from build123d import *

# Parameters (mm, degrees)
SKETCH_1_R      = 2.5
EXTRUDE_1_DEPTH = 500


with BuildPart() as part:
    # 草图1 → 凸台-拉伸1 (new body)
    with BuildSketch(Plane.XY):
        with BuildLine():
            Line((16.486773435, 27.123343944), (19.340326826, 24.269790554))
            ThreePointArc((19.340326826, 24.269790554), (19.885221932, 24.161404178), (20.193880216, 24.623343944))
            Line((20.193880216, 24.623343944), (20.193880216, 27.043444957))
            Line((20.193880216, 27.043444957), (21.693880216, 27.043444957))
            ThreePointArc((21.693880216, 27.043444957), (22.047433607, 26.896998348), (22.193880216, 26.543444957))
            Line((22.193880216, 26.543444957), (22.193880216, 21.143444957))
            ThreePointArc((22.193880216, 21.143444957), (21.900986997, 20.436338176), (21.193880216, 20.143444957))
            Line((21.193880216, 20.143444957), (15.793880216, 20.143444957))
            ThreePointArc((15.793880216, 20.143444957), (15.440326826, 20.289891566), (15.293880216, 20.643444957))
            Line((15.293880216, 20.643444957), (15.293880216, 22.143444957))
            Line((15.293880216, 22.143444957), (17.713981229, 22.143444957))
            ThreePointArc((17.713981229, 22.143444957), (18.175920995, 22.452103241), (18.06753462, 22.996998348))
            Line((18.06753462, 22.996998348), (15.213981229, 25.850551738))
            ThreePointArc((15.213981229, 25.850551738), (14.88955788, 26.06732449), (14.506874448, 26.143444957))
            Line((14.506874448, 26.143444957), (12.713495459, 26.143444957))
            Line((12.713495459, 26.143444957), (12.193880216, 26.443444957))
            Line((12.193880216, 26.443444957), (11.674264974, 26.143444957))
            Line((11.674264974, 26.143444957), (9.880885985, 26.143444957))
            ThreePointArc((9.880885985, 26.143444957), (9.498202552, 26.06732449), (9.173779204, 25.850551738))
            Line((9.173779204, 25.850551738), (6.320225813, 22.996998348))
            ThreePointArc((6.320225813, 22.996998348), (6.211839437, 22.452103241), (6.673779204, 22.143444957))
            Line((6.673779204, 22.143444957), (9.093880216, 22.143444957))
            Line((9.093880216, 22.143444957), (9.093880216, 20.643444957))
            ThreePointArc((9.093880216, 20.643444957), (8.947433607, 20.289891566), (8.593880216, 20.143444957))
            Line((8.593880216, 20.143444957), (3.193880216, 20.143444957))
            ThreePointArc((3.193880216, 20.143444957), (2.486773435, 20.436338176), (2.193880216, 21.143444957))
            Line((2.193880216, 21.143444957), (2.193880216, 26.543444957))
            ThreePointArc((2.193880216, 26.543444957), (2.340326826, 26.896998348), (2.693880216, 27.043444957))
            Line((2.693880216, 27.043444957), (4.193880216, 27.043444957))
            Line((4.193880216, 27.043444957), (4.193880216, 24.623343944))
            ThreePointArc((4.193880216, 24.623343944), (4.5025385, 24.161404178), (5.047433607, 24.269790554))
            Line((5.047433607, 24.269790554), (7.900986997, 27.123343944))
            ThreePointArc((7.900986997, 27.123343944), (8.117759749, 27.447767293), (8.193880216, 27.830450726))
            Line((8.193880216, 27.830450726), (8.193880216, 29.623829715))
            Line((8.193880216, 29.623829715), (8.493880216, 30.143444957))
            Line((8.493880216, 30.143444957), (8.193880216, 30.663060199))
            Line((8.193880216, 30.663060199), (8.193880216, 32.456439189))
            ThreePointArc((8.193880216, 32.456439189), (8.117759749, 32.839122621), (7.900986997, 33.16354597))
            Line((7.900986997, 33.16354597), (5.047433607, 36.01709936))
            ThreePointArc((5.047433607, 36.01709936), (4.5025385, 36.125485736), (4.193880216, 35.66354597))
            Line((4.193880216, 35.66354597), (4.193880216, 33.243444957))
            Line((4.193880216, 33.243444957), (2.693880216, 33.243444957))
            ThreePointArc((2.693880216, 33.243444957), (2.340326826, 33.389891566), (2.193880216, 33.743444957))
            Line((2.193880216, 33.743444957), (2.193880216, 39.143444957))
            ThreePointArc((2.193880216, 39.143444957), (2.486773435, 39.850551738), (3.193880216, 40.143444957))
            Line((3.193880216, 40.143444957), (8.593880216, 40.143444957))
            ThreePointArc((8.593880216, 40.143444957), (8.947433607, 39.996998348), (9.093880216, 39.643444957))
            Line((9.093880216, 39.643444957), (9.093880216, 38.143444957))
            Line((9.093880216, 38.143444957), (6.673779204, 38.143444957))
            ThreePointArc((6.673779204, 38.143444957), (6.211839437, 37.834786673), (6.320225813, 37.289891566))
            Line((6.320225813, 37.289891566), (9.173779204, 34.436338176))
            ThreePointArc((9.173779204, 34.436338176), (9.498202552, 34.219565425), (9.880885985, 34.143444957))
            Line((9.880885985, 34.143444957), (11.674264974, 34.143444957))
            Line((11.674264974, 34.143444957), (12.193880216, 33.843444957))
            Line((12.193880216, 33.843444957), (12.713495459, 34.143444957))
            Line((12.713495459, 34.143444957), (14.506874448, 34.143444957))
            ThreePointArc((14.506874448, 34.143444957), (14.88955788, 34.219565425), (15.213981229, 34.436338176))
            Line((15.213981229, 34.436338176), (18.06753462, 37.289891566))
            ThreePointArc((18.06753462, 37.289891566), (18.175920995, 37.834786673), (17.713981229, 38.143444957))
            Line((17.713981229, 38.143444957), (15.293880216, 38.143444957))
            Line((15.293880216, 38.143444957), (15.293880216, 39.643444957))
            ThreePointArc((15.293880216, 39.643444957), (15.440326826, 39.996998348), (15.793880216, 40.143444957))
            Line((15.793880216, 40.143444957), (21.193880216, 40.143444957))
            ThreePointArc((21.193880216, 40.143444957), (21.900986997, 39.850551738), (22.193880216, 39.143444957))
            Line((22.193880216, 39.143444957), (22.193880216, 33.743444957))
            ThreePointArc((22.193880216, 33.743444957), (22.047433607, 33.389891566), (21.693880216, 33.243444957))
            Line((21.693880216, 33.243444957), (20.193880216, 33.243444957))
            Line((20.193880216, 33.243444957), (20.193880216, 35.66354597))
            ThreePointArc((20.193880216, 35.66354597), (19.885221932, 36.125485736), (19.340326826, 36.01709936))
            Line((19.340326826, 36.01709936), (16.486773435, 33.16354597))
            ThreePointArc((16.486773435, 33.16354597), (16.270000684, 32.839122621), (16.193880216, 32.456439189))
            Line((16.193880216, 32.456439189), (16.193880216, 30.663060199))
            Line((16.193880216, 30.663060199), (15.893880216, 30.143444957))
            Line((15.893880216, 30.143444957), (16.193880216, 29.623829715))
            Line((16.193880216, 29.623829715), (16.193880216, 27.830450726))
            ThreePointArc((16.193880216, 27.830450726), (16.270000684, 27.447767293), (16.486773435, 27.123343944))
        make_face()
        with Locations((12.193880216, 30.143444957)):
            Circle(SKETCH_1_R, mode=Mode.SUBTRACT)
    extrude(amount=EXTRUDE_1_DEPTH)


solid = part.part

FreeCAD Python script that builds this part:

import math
import FreeCAD as App
import Part
import Sketcher
Q = App.Units.Quantity

doc = App.newDocument("Part")
body = doc.addObject("PartDesign::Body", "Body")

sketch1 = doc.addObject("Sketcher::SketchObject", "Sketch")
body.addObject(sketch1)
sketch1.AttachmentSupport = (doc.XY_Plane, [""])
sketch1.MapMode = "FlatFace"
sketch1.addGeometry([
    Part.LineSegment(App.Vector(19.34, 24.27, 0), App.Vector(16.49, 27.12, 0)),
    Part.ArcOfCircle(Part.Circle(App.Vector(17.19, 27.83, 0), App.Vector(0, 0, 1), 1), math.radians(-180), math.radians(-135)),
    Part.LineSegment(App.Vector(16.19, 27.83, 0), App.Vector(16.19, 29.62, 0)),
    Part.LineSegment(App.Vector(16.19, 29.62, 0), App.Vector(15.89, 30.14, 0)),
    Part.LineSegment(App.Vector(15.89, 30.14, 0), App.Vector(16.19, 30.66, 0)),
    Part.LineSegment(App.Vector(16.19, 30.66, 0), App.Vector(16.19, 32.46, 0)),
    Part.ArcOfCircle(Part.Circle(App.Vector(17.19, 32.46, 0), App.Vector(0, 0, 1), 1), math.radians(135), math.radians(180)),
    Part.LineSegment(App.Vector(16.49, 33.16, 0), App.Vector(19.34, 36.02, 0)),
    Part.ArcOfCircle(Part.Circle(App.Vector(19.69, 35.66, 0), App.Vector(0, 0, 1), 0.5), math.radians(0), math.radians(135)),
    Part.LineSegment(App.Vector(20.19, 35.66, 0), App.Vector(20.19, 33.24, 0)),
    Part.LineSegment(App.Vector(20.19, 33.24, 0), App.Vector(21.69, 33.24, 0)),
    Part.ArcOfCircle(Part.Circle(App.Vector(21.69, 33.74, 0), App.Vector(0, 0, 1), 0.5), math.radians(-90), math.radians(0)),
    Part.LineSegment(App.Vector(22.19, 33.74, 0), App.Vector(22.19, 39.14, 0)),
    Part.ArcOfCircle(Part.Circle(App.Vector(21.19, 39.14, 0), App.Vector(0, 0, 1), 1), math.radians(0), math.radians(90)),
    Part.LineSegment(App.Vector(21.19, 40.14, 0), App.Vector(15.79, 40.14, 0)),
    Part.ArcOfCircle(Part.Circle(App.Vector(15.79, 39.64, 0), App.Vector(0, 0, 1), 0.5), math.radians(90), math.radians(180)),
    Part.LineSegment(App.Vector(15.29, 39.64, 0), App.Vector(15.29, 38.14, 0)),
    Part.LineSegment(App.Vector(15.29, 38.14, 0), App.Vector(17.71, 38.14, 0)),
    Part.ArcOfCircle(Part.Circle(App.Vector(17.71, 37.64, 0), App.Vector(0, 0, 1), 0.5), math.radians(-45), math.radians(90)),
    Part.LineSegment(App.Vector(18.07, 37.29, 0), App.Vector(15.21, 34.44, 0)),
    Part.ArcOfCircle(Part.Circle(App.Vector(14.51, 35.14, 0), App.Vector(0, 0, 1), 1), math.radians(-90), math.radians(-45)),
    Part.LineSegment(App.Vector(14.51, 34.14, 0), App.Vector(12.71, 34.14, 0)),
    Part.LineSegment(App.Vector(12.71, 34.14, 0), App.Vector(12.19, 33.84, 0)),
    Part.LineSegment(App.Vector(12.19, 33.84, 0), App.Vector(11.67, 34.14, 0)),
    Part.LineSegment(App.Vector(11.67, 34.14, 0), App.Vector(9.88, 34.14, 0)),
    Part.ArcOfCircle(Part.Circle(App.Vector(9.88, 35.14, 0), App.Vector(0, 0, 1), 1), math.radians(-135), math.radians(-90)),
    Part.LineSegment(App.Vector(9.17, 34.44, 0), App.Vector(6.32, 37.29, 0)),
    Part.ArcOfCircle(Part.Circle(App.Vector(6.67, 37.64, 0), App.Vector(0, 0, 1), 0.5), math.radians(90), math.radians(225)),
    Part.LineSegment(App.Vector(6.67, 38.14, 0), App.Vector(9.09, 38.14, 0)),
    Part.LineSegment(App.Vector(9.09, 38.14, 0), App.Vector(9.09, 39.64, 0)),
    Part.ArcOfCircle(Part.Circle(App.Vector(8.59, 39.64, 0), App.Vector(0, 0, 1), 0.5), math.radians(0), math.radians(90)),
    Part.LineSegment(App.Vector(8.59, 40.14, 0), App.Vector(3.19, 40.14, 0)),
    Part.ArcOfCircle(Part.Circle(App.Vector(3.19, 39.14, 0), App.Vector(0, 0, 1), 1), math.radians(90), math.radians(180)),
    Part.LineSegment(App.Vector(2.19, 39.14, 0), App.Vector(2.19, 33.74, 0)),
    Part.ArcOfCircle(Part.Circle(App.Vector(2.69, 33.74, 0), App.Vector(0, 0, 1), 0.5), math.radians(180), math.radians(270)),
    Part.LineSegment(App.Vector(2.69, 33.24, 0), App.Vector(4.19, 33.24, 0)),
    Part.LineSegment(App.Vector(4.19, 33.24, 0), App.Vector(4.19, 35.66, 0)),
    Part.ArcOfCircle(Part.Circle(App.Vector(4.69, 35.66, 0), App.Vector(0, 0, 1), 0.5), math.radians(45), math.radians(180)),
    Part.LineSegment(App.Vector(5.05, 36.02, 0), App.Vector(7.9, 33.16, 0)),
    Part.ArcOfCircle(Part.Circle(App.Vector(7.19, 32.46, 0), App.Vector(0, 0, 1), 1), math.radians(0), math.radians(45)),
    Part.LineSegment(App.Vector(8.19, 32.46, 0), App.Vector(8.19, 30.66, 0)),
    Part.LineSegment(App.Vector(8.19, 30.66, 0), App.Vector(8.49, 30.14, 0)),
    Part.LineSegment(App.Vector(8.49, 30.14, 0), App.Vector(8.19, 29.62, 0)),
    Part.LineSegment(App.Vector(8.19, 29.62, 0), App.Vector(8.19, 27.83, 0)),
    Part.ArcOfCircle(Part.Circle(App.Vector(7.19, 27.83, 0), App.Vector(0, 0, 1), 1), math.radians(-45), math.radians(0)),
    Part.LineSegment(App.Vector(7.9, 27.12, 0), App.Vector(5.05, 24.27, 0)),
    Part.ArcOfCircle(Part.Circle(App.Vector(4.69, 24.62, 0), App.Vector(0, 0, 1), 0.5), math.radians(180), math.radians(315)),
    Part.LineSegment(App.Vector(4.19, 24.62, 0), App.Vector(4.19, 27.04, 0)),
    Part.LineSegment(App.Vector(4.19, 27.04, 0), App.Vector(2.69, 27.04, 0)),
    Part.ArcOfCircle(Part.Circle(App.Vector(2.69, 26.54, 0), App.Vector(0, 0, 1), 0.5), math.radians(90), math.radians(180)),
    Part.LineSegment(App.Vector(2.19, 26.54, 0), App.Vector(2.19, 21.14, 0)),
    Part.ArcOfCircle(Part.Circle(App.Vector(3.19, 21.14, 0), App.Vector(0, 0, 1), 1), math.radians(-180), math.radians(-90)),
    Part.LineSegment(App.Vector(3.19, 20.14, 0), App.Vector(8.59, 20.14, 0)),
    Part.ArcOfCircle(Part.Circle(App.Vector(8.59, 20.64, 0), App.Vector(0, 0, 1), 0.5), math.radians(-90), math.radians(0)),
    Part.LineSegment(App.Vector(9.09, 20.64, 0), App.Vector(9.09, 22.14, 0)),
    Part.LineSegment(App.Vector(9.09, 22.14, 0), App.Vector(6.67, 22.14, 0)),
    Part.ArcOfCircle(Part.Circle(App.Vector(6.67, 22.64, 0), App.Vector(0, 0, 1), 0.5), math.radians(135), math.radians(270)),
    Part.LineSegment(App.Vector(6.32, 23, 0), App.Vector(9.17, 25.85, 0)),
    Part.ArcOfCircle(Part.Circle(App.Vector(9.88, 25.14, 0), App.Vector(0, 0, 1), 1), math.radians(90), math.radians(135)),
    Part.LineSegment(App.Vector(9.88, 26.14, 0), App.Vector(11.67, 26.14, 0)),
    Part.LineSegment(App.Vector(11.67, 26.14, 0), App.Vector(12.19, 26.44, 0)),
    Part.LineSegment(App.Vector(12.19, 26.44, 0), App.Vector(12.71, 26.14, 0)),
    Part.LineSegment(App.Vector(12.71, 26.14, 0), App.Vector(14.51, 26.14, 0)),
    Part.ArcOfCircle(Part.Circle(App.Vector(14.51, 25.14, 0), App.Vector(0, 0, 1), 1), math.radians(45), math.radians(90)),
    Part.LineSegment(App.Vector(15.21, 25.85, 0), App.Vector(18.07, 23, 0)),
    Part.ArcOfCircle(Part.Circle(App.Vector(17.71, 22.64, 0), App.Vector(0, 0, 1), 0.5), math.radians(-90), math.radians(45)),
    Part.LineSegment(App.Vector(17.71, 22.14, 0), App.Vector(15.29, 22.14, 0)),
    Part.LineSegment(App.Vector(15.29, 22.14, 0), App.Vector(15.29, 20.64, 0)),
    Part.ArcOfCircle(Part.Circle(App.Vector(15.79, 20.64, 0), App.Vector(0, 0, 1), 0.5), math.radians(180), math.radians(270)),
    Part.LineSegment(App.Vector(15.79, 20.14, 0), App.Vector(21.19, 20.14, 0)),
    Part.ArcOfCircle(Part.Circle(App.Vector(21.19, 21.14, 0), App.Vector(0, 0, 1), 1), math.radians(-90), math.radians(0)),
    Part.LineSegment(App.Vector(22.19, 21.14, 0), App.Vector(22.19, 26.54, 0)),
    Part.ArcOfCircle(Part.Circle(App.Vector(21.69, 26.54, 0), App.Vector(0, 0, 1), 0.5), math.radians(0), math.radians(90)),
    Part.LineSegment(App.Vector(21.69, 27.04, 0), App.Vector(20.19, 27.04, 0)),
    Part.LineSegment(App.Vector(20.19, 27.04, 0), App.Vector(20.19, 24.62, 0)),
    Part.ArcOfCircle(Part.Circle(App.Vector(19.69, 24.62, 0), App.Vector(0, 0, 1), 0.5), math.radians(-135), math.radians(0)),
    Part.Circle(App.Vector(12.19, 30.14, 0), App.Vector(0, 0, 1), 2.5),
], False)
sketch1.addConstraint([
    Sketcher.Constraint("Tangent", 0, 2, 1, 2),
    Sketcher.Constraint("Tangent", 1, 1, 2, 1),
    Sketcher.Constraint("Coincident", 2, 2, 3, 1),
    Sketcher.Constraint("Coincident", 3, 2, 4, 1),
    Sketcher.Constraint("Coincident", 4, 2, 5, 1),
    Sketcher.Constraint("Tangent", 5, 2, 6, 2),
    Sketcher.Constraint("Tangent", 6, 1, 7, 1),
    Sketcher.Constraint("Tangent", 7, 2, 8, 2),
    Sketcher.Constraint("Tangent", 8, 1, 9, 1),
    Sketcher.Constraint("Coincident", 9, 2, 10, 1),
    Sketcher.Constraint("Tangent", 10, 2, 11, 1),
    Sketcher.Constraint("Tangent", 11, 2, 12, 1),
    Sketcher.Constraint("Tangent", 12, 2, 13, 1),
    Sketcher.Constraint("Tangent", 13, 2, 14, 1),
    Sketcher.Constraint("Tangent", 14, 2, 15, 1),
    Sketcher.Constraint("Tangent", 15, 2, 16, 1),
    Sketcher.Constraint("Coincident", 16, 2, 17, 1),
    Sketcher.Constraint("Tangent", 17, 2, 18, 2),
    Sketcher.Constraint("Tangent", 18, 1, 19, 1),
    Sketcher.Constraint("Tangent", 19, 2, 20, 2),
    Sketcher.Constraint("Tangent", 20, 1, 21, 1),
    Sketcher.Constraint("Coincident", 21, 2, 22, 1),
    Sketcher.Constraint("Coincident", 22, 2, 23, 1),
    Sketcher.Constraint("Coincident", 23, 2, 24, 1),
    Sketcher.Constraint("Tangent", 24, 2, 25, 2),
    Sketcher.Constraint("Tangent", 25, 1, 26, 1),
    Sketcher.Constraint("Tangent", 26, 2, 27, 2),
    Sketcher.Constraint("Tangent", 27, 1, 28, 1),
    Sketcher.Constraint("Coincident", 28, 2, 29, 1),
    Sketcher.Constraint("Tangent", 29, 2, 30, 1),
    Sketcher.Constraint("Tangent", 30, 2, 31, 1),
    Sketcher.Constraint("Tangent", 31, 2, 32, 1),
    Sketcher.Constraint("Tangent", 32, 2, 33, 1),
    Sketcher.Constraint("Tangent", 33, 2, 34, 1),
    Sketcher.Constraint("Tangent", 34, 2, 35, 1),
    Sketcher.Constraint("Coincident", 35, 2, 36, 1),
    Sketcher.Constraint("Tangent", 36, 2, 37, 2),
    Sketcher.Constraint("Tangent", 37, 1, 38, 1),
    Sketcher.Constraint("Tangent", 38, 2, 39, 2),
    Sketcher.Constraint("Tangent", 39, 1, 40, 1),
    Sketcher.Constraint("Coincident", 40, 2, 41, 1),
    Sketcher.Constraint("Coincident", 41, 2, 42, 1),
    Sketcher.Constraint("Coincident", 42, 2, 43, 1),
    Sketcher.Constraint("Tangent", 43, 2, 44, 2),
    Sketcher.Constraint("Tangent", 44, 1, 45, 1),
    Sketcher.Constraint("Tangent", 45, 2, 46, 2),
    Sketcher.Constraint("Tangent", 46, 1, 47, 1),
    Sketcher.Constraint("Coincident", 47, 2, 48, 1),
    Sketcher.Constraint("Tangent", 48, 2, 49, 1),
    Sketcher.Constraint("Tangent", 49, 2, 50, 1),
    Sketcher.Constraint("Tangent", 50, 2, 51, 1),
    Sketcher.Constraint("Tangent", 51, 2, 52, 1),
    Sketcher.Constraint("Tangent", 52, 2, 53, 1),
    Sketcher.Constraint("Tangent", 53, 2, 54, 1),
    Sketcher.Constraint("Coincident", 54, 2, 55, 1),
    Sketcher.Constraint("Tangent", 55, 2, 56, 2),
    Sketcher.Constraint("Tangent", 56, 1, 57, 1),
    Sketcher.Constraint("Tangent", 57, 2, 58, 2),
    Sketcher.Constraint("Tangent", 58, 1, 59, 1),
    Sketcher.Constraint("Coincident", 59, 2, 60, 1),
    Sketcher.Constraint("Coincident", 60, 2, 61, 1),
    Sketcher.Constraint("Coincident", 61, 2, 62, 1),
    Sketcher.Constraint("Tangent", 62, 2, 63, 2),
    Sketcher.Constraint("Tangent", 63, 1, 64, 1),
    Sketcher.Constraint("Tangent", 64, 2, 65, 2),
    Sketcher.Constraint("Tangent", 65, 1, 66, 1),
    Sketcher.Constraint("Coincident", 66, 2, 67, 1),
    Sketcher.Constraint("Tangent", 67, 2, 68, 1),
    Sketcher.Constraint("Tangent", 68, 2, 69, 1),
    Sketcher.Constraint("Tangent", 69, 2, 70, 1),
    Sketcher.Constraint("Tangent", 70, 2, 71, 1),
    Sketcher.Constraint("Tangent", 71, 2, 72, 1),
    Sketcher.Constraint("Tangent", 72, 2, 73, 1),
    Sketcher.Constraint("Coincident", 73, 2, 74, 1),
    Sketcher.Constraint("Tangent", 74, 2, 75, 2),
    Sketcher.Constraint("Tangent", 75, 1, 0, 1),
    Sketcher.Constraint("Vertical", 2),
    Sketcher.Constraint("Vertical", 5),
    Sketcher.Constraint("Vertical", 9),
    Sketcher.Constraint("Horizontal", 10),
    Sketcher.Constraint("Vertical", 12),
    Sketcher.Constraint("Horizontal", 14),
    Sketcher.Constraint("Vertical", 16),
    Sketcher.Constraint("Horizontal", 17),
    Sketcher.Constraint("Horizontal", 21),
    Sketcher.Constraint("Horizontal", 24),
    Sketcher.Constraint("Horizontal", 28),
    Sketcher.Constraint("Vertical", 29),
    Sketcher.Constraint("Horizontal", 31),
    Sketcher.Constraint("Vertical", 33),
    Sketcher.Constraint("Horizontal", 35),
    Sketcher.Constraint("Vertical", 36),
    Sketcher.Constraint("Vertical", 40),
    Sketcher.Constraint("Vertical", 43),
    Sketcher.Constraint("Vertical", 47),
    Sketcher.Constraint("Horizontal", 48),
    Sketcher.Constraint("Vertical", 50),
    Sketcher.Constraint("Horizontal", 52),
    Sketcher.Constraint("Vertical", 54),
    Sketcher.Constraint("Horizontal", 55),
    Sketcher.Constraint("Horizontal", 59),
    Sketcher.Constraint("Horizontal", 62),
    Sketcher.Constraint("Horizontal", 66),
    Sketcher.Constraint("Vertical", 67),
    Sketcher.Constraint("Horizontal", 69),
    Sketcher.Constraint("Vertical", 71),
    Sketcher.Constraint("Horizontal", 73),
    Sketcher.Constraint("Vertical", 74),
    Sketcher.Constraint("Equal", 1, 6),
    Sketcher.Constraint("Equal", 8, 11),
    Sketcher.Constraint("Equal", 6, 13),
    Sketcher.Constraint("Equal", 11, 15),
    Sketcher.Constraint("Equal", 15, 18),
    Sketcher.Constraint("Equal", 13, 20),
    Sketcher.Constraint("Equal", 20, 25),
    Sketcher.Constraint("Equal", 18, 27),
    Sketcher.Constraint("Equal", 27, 30),
    Sketcher.Constraint("Equal", 25, 32),
    Sketcher.Constraint("Equal", 30, 34),
    Sketcher.Constraint("Equal", 34, 37),
    Sketcher.Constraint("Equal", 32, 39),
    Sketcher.Constraint("Equal", 39, 44),
    Sketcher.Constraint("Equal", 37, 46),
    Sketcher.Constraint("Equal", 46, 49),
    Sketcher.Constraint("Equal", 44, 51),
    Sketcher.Constraint("Equal", 49, 53),
    Sketcher.Constraint("Equal", 53, 56),
    Sketcher.Constraint("Equal", 51, 58),
    Sketcher.Constraint("Equal", 58, 63),
    Sketcher.Constraint("Equal", 56, 65),
    Sketcher.Constraint("Equal", 65, 68),
    Sketcher.Constraint("Equal", 63, 70),
    Sketcher.Constraint("Equal", 68, 72),
    Sketcher.Constraint("Equal", 72, 75),
    Sketcher.Constraint("Perpendicular", 0, 7),
    Sketcher.Constraint("Parallel", 7, 19),
    Sketcher.Constraint("Perpendicular", 3, 22),
    Sketcher.Constraint("Perpendicular", 4, 23),
    Sketcher.Constraint("Perpendicular", 19, 26),
    Sketcher.Constraint("Parallel", 26, 38),
    Sketcher.Constraint("Perpendicular", 22, 41),
    Sketcher.Constraint("Perpendicular", 23, 42),
    Sketcher.Constraint("Perpendicular", 38, 45),
    Sketcher.Constraint("Parallel", 45, 57),
    Sketcher.Constraint("Perpendicular", 41, 60),
    Sketcher.Constraint("Perpendicular", 42, 61),
    Sketcher.Constraint("Perpendicular", 57, 64),
    Sketcher.Constraint("Horizontal", 20, 3, 25, 3),
    Sketcher.Constraint("Horizontal", 18, 3, 27, 3),
    Sketcher.Constraint("Horizontal", 15, 3, 30, 3),
    Sketcher.Constraint("Horizontal", 11, 3, 34, 3),
    Sketcher.Constraint("Horizontal", 8, 3, 37, 3),
    Sketcher.Constraint("Horizontal", 6, 3, 39, 3),
    Sketcher.Constraint("Horizontal", 1, 3, 44, 3),
    Sketcher.Constraint("Horizontal", 58, 3, 63, 3),
    Sketcher.Constraint("Horizontal", 56, 3, 65, 3),
    Sketcher.Constraint("Horizontal", 53, 3, 68, 3),
    Sketcher.Constraint("Horizontal", 49, 3, 72, 3),
    Sketcher.Constraint("Horizontal", 46, 3, 75, 3),
    Sketcher.Constraint("Horizontal", 76, 3, 3, 2),
    Sketcher.Constraint("Horizontal", 19, 2, 25, 1),
    Sketcher.Constraint("Horizontal", 4, 2, 40, 2),
    Sketcher.Constraint("Horizontal", 3, 2, 41, 2),
    Sketcher.Constraint("Horizontal", 2, 2, 42, 2),
    Sketcher.Constraint("Vertical", 1, 3, 6, 3),
    Sketcher.Constraint("Vertical", 39, 3, 44, 3),
    Sketcher.Constraint("Vertical", 37, 3, 46, 3),
    Sketcher.Constraint("Vertical", 34, 3, 49, 3),
    Sketcher.Constraint("Vertical", 30, 3, 53, 3),
    Sketcher.Constraint("Vertical", 27, 3, 56, 3),
    Sketcher.Constraint("Vertical", 25, 3, 58, 3),
    Sketcher.Constraint("Vertical", 20, 3, 63, 3),
    Sketcher.Constraint("Vertical", 15, 3, 68, 3),
    Sketcher.Constraint("Vertical", 13, 3, 70, 3),
    Sketcher.Constraint("Vertical", 76, 3, 22, 2),
    Sketcher.Constraint("Vertical", 23, 2, 59, 2),
    Sketcher.Constraint("Vertical", 22, 2, 60, 2),
    Sketcher.Constraint("Equal", 21, 24),
    Sketcher.Constraint("Equal", 17, 28),
    Sketcher.Constraint("Equal", 14, 31),
    Sketcher.Constraint("Equal", 10, 35),
    Sketcher.Constraint("Equal", 62, 2),
    Sketcher.Constraint("Equal", 2, 5),
    Sketcher.Constraint("Equal", 66, 9),
    Sketcher.Constraint("Equal", 69, 12),
    Sketcher.Constraint("Equal", 73, 16),
    Sketcher.Constraint("Equal", 36, 47),
    Sketcher.Constraint("Equal", 33, 50),
    Sketcher.Constraint("Equal", 29, 54),
    Sketcher.Constraint("Equal", 7, 19),
    Sketcher.Constraint("Equal", 4, 22),
    Sketcher.Constraint("Diameter", 76, 5.0),
    Sketcher.Constraint("Radius", 1, 1.0),
    Sketcher.Constraint("Radius", 8, 0.5),
    Sketcher.Constraint("Angle", 3, Q("120 deg")),
    Sketcher.Constraint("DistanceX", 10, 1, 10, 2, 1.5),
    Sketcher.Constraint("DistanceX", 14, 2, 14, 1, 5.4),
    Sketcher.Constraint("Distance", 3, 0.6),
    Sketcher.Constraint("DistanceX", 17, 1, 17, 2, 2.420101),
    Sketcher.Constraint("DistanceY", -1, 1, 56, 1, 22.996998),
    Sketcher.Constraint("DistanceX", 21, 2, 21, 1, 1.793379),
    Sketcher.Constraint("DistanceY", -1, 1, 7, 2, 36.017099),
    Sketcher.Constraint("DistanceX", -1, 1, 1, 3, 17.19388),
])
pad1 = doc.addObject("PartDesign::Pad", "Pad")
body.addObject(pad1)
pad1.Profile = sketch1
pad1.Length = 500

doc.recompute()
